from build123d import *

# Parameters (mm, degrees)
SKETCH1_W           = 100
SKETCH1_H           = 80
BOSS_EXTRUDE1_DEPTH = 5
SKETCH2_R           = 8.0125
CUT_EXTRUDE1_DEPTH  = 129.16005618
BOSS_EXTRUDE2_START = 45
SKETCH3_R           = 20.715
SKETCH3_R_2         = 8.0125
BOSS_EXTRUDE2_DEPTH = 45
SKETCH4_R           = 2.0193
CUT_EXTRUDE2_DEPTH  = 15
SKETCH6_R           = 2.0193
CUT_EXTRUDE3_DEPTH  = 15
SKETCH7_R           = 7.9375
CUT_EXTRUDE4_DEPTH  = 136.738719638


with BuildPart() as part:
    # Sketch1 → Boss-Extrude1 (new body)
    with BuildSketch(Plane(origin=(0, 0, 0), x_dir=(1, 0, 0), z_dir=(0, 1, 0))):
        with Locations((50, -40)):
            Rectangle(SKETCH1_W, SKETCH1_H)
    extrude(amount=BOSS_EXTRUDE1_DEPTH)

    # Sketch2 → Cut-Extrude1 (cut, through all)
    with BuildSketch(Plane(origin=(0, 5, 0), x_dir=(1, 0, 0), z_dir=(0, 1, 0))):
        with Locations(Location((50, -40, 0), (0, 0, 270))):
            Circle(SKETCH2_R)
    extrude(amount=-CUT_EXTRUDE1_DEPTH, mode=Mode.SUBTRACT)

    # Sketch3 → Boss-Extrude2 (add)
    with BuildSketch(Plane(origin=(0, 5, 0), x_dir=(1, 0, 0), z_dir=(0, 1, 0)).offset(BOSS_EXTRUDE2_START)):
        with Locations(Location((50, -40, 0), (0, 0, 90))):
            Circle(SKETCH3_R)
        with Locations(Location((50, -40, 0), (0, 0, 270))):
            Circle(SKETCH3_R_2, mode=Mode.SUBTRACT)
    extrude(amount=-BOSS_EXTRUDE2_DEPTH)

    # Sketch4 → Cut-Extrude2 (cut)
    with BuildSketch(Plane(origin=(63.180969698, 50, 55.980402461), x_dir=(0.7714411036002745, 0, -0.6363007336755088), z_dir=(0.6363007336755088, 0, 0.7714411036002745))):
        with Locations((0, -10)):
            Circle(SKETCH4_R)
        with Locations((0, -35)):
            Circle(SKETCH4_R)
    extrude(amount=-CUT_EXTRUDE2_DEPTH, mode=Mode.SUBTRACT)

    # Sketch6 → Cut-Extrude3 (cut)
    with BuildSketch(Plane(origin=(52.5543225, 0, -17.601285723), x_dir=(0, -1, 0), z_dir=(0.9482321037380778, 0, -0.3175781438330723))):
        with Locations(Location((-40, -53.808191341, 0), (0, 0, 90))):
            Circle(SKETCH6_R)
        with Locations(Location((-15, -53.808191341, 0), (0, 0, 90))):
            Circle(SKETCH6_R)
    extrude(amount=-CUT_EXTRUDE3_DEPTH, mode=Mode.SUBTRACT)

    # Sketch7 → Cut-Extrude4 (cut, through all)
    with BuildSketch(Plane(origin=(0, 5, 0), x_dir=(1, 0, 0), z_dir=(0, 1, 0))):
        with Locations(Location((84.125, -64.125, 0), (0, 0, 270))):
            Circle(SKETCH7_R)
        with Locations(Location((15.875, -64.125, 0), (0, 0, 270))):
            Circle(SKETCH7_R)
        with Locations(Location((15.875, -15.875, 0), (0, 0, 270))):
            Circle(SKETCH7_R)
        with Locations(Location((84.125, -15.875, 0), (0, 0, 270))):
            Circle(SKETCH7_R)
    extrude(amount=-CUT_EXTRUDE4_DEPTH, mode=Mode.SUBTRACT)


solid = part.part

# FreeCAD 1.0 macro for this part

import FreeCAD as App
import Part
import Sketcher
from FreeCAD import Vector

doc = App.newDocument("Part")
body = doc.addObject("PartDesign::Body", "Body")

sketch1 = body.newObject("Sketcher::SketchObject", "Sketch")
sketch1.AttachmentSupport = (doc.getObject("XZ_Plane"), [""])
sketch1.MapMode = "FlatFace"
sketch1.addGeometry(Part.LineSegment(Vector(0, 0, 0), Vector(0, 80, 0)), False)
sketch1.addGeometry(Part.LineSegment(Vector(0, 80, 0), Vector(100, 80, 0)), False)
sketch1.addGeometry(Part.LineSegment(Vector(100, 80, 0), Vector(100, 0, 0)), False)
sketch1.addGeometry(Part.LineSegment(Vector(100, 0, 0), Vector(0, 0, 0)), False)
sketch1.addConstraint(Sketcher.Constraint("Coincident", 0, 2, 1, 1))
sketch1.addConstraint(Sketcher.Constraint("Coincident", 1, 2, 2, 1))
sketch1.addConstraint(Sketcher.Constraint("Coincident", 2, 2, 3, 1))
sketch1.addConstraint(Sketcher.Constraint("Coincident", 3, 2, 0, 1))
sketch1.addConstraint(Sketcher.Constraint("Vertical", 0))
sketch1.addConstraint(Sketcher.Constraint("Horizontal", 1))
sketch1.addConstraint(Sketcher.Constraint("Vertical", 2))
sketch1.addConstraint(Sketcher.Constraint("Horizontal", 3))
sketch1.addConstraint(Sketcher.Constraint("Coincident", 3, 2, -1, 1))
sketch1.addConstraint(Sketcher.Constraint("DistanceX", 1, 1, 1, 2, 100.0))
sketch1.addConstraint(Sketcher.Constraint("DistanceY", 0, 1, 0, 2, 80.0))
pad1 = body.newObject("PartDesign::Pad", "Pad")
pad1.Profile = sketch1
pad1.Length = 5
pad1.Reversed = True

sketch2 = body.newObject("Sketcher::SketchObject", "Sketch001")
sketch2.AttachmentSupport = (doc.getObject("XZ_Plane"), [""])
sketch2.MapMode = "FlatFace"
sketch2.AttachmentOffset = App.Placement(Vector(0, 0, -5), App.Rotation())
sketch2.addGeometry(Part.Circle(Vector(50, 40, 0), Vector(0, 0, 1), 8), False)
sketch2.addConstraint(Sketcher.Constraint("Diameter", 0, 16.025))
sketch2.addConstraint(Sketcher.Constraint("DistanceX", -1, 1, 0, 3, 50.0))
sketch2.addConstraint(Sketcher.Constraint("DistanceY", -1, 1, 0, 3, 40.0))
pocket1 = body.newObject("PartDesign::Pocket", "Pocket")
pocket1.Profile = sketch2
pocket1.Type = "ThroughAll"
pocket1.Reversed = True

sketch3 = body.newObject("Sketcher::SketchObject", "Sketch002")
sketch3.AttachmentSupport = (doc.getObject("XZ_Plane"), [""])
sketch3.MapMode = "FlatFace"
sketch3.AttachmentOffset = App.Placement(Vector(0, 0, -50), App.Rotation())
sketch3.addGeometry(Part.Circle(Vector(50, 40, 0), Vector(0, 0, 1), 21), False)
sketch3.addGeometry(Part.Circle(Vector(50, 40, 0), Vector(0, 0, 1), 8), False)
sketch3.addConstraint(Sketcher.Constraint("Coincident", 1, 3, 0, 3))
sketch3.addConstraint(Sketcher.Constraint("Diameter", 0, 41.43))
sketch3.addConstraint(Sketcher.Constraint("Diameter", 1, 16.025))
sketch3.addConstraint(Sketcher.Constraint("DistanceX", -1, 1, 0, 3, 50.0))
sketch3.addConstraint(Sketcher.Constraint("DistanceY", -1, 1, 0, 3, 40.0))
pad2 = body.newObject("PartDesign::Pad", "Pad001")
pad2.Profile = sketch3
pad2.Length = 45

sketch4 = body.newObject("Sketcher::SketchObject", "Sketch003")
sketch4.Placement = App.Placement(Vector(63.18097, 50, 55.980402), App.Rotation(Vector(0.771441104, 0, -0.636300734), Vector(0, 1.000000001, 0), Vector(0.636300734, 0, 0.771441104), "ZXY"))
sketch4.addGeometry(Part.Circle(Vector(0, -10, 0), Vector(0, 0, 1), 2), False)
sketch4.addGeometry(Part.Circle(Vector(0, -35, 0), Vector(0, 0, 1), 2), False)
sketch4.addConstraint(Sketcher.Constraint("Equal", 0, 1))
sketch4.addConstraint(Sketcher.Constraint("PointOnObject", 0, 3, -2))
sketch4.addConstraint(Sketcher.Constraint("PointOnObject", 1, 3, -2))
sketch4.addConstraint(Sketcher.Constraint("DistanceY", 0, 3, -1, 1, 10.0))
sketch4.addConstraint(Sketcher.Constraint("DistanceY", 1, 3, -1, 1, 35.0))
sketch4.addConstraint(Sketcher.Constraint("Diameter", 0, 4.0386))
pocket2 = body.newObject("PartDesign::Pocket", "Pocket001")
pocket2.Profile = sketch4
pocket2.Length = 15

sketch5 = body.newObject("Sketcher::SketchObject", "Sketch004")
sketch5.Placement = App.Placement(Vector(52.554322, 0, -17.601286), App.Rotation(Vector(0, -1, 0), Vector(-0.317578144, 0, -0.948232104), Vector(0.948232104, 0, -0.317578144), "ZXY"))
sketch5.addGeometry(Part.Circle(Vector(-40, -53.8, 0), Vector(0, 0, 1), 2), False)
sketch5.addGeometry(Part.Circle(Vector(-15, -53.8, 0), Vector(0, 0, 1), 2), False)
sketch5.addConstraint(Sketcher.Constraint("Equal", 0, 1))
sketch5.addConstraint(Sketcher.Constraint("Horizontal", 0, 3, 1, 3))
sketch5.addConstraint(Sketcher.Constraint("DistanceX", 0, 3, -1, 1, 40.0))
sketch5.addConstraint(Sketcher.Constraint("DistanceX", 1, 3, -1, 1, 15.0))
sketch5.addConstraint(Sketcher.Constraint("Diameter", 0, 4.0386))
sketch5.addConstraint(Sketcher.Constraint("DistanceY", 0, 3, -1, 1, 53.808191))
pocket3 = body.newObject("PartDesign::Pocket", "Pocket002")
pocket3.Profile = sketch5
pocket3.Length = 15

sketch6 = body.newObject("Sketcher::SketchObject", "Sketch005")
sketch6.AttachmentSupport = (doc.getObject("XZ_Plane"), [""])
sketch6.MapMode = "FlatFace"
sketch6.AttachmentOffset = App.Placement(Vector(0, 0, -5), App.Rotation())
sketch6.addGeometry(Part.Circle(Vector(84, 64, 0), Vector(0, 0, 1), 8), False)
sketch6.addGeometry(Part.Circle(Vector(16, 64, 0), Vector(0, 0, 1), 8), False)
sketch6.addGeometry(Part.Circle(Vector(16, 16, 0), Vector(0, 0, 1), 8), False)
sketch6.addGeometry(Part.Circle(Vector(84, 16, 0), Vector(0, 0, 1), 8), False)
sketch6.addConstraint(Sketcher.Constraint("Equal", 0, 1))
sketch6.addConstraint(Sketcher.Constraint("Equal", 1, 2))
sketch6.addConstraint(Sketcher.Constraint("Equal", 2, 3))
sketch6.addConstraint(Sketcher.Constraint("Horizontal", 0, 3, 1, 3))
sketch6.addConstraint(Sketcher.Constraint("Horizontal", 2, 3, 3, 3))
sketch6.addConstraint(Sketcher.Constraint("Vertical", 1, 3, 2, 3))
sketch6.addConstraint(Sketcher.Constraint("Vertical", 0, 3, 3, 3))
sketch6.addConstraint(Sketcher.Constraint("Diameter", 0, 15.875))
sketch6.addConstraint(Sketcher.Constraint("DistanceX", 1, 3, 0, 3, 68.25))
sketch6.addConstraint(Sketcher.Constraint("DistanceY", 2, 3, 1, 3, 48.25))
sketch6.addConstraint(Sketcher.Constraint("DistanceX", -1, 1, 0, 3, 84.125))
sketch6.addConstraint(Sketcher.Constraint("DistanceY", -1, 1, 0, 3, 64.125))
pocket4 = body.newObject("PartDesign::Pocket", "Pocket003")
pocket4.Profile = sketch6
pocket4.Type = "ThroughAll"
pocket4.Reversed = True

doc.recompute()
